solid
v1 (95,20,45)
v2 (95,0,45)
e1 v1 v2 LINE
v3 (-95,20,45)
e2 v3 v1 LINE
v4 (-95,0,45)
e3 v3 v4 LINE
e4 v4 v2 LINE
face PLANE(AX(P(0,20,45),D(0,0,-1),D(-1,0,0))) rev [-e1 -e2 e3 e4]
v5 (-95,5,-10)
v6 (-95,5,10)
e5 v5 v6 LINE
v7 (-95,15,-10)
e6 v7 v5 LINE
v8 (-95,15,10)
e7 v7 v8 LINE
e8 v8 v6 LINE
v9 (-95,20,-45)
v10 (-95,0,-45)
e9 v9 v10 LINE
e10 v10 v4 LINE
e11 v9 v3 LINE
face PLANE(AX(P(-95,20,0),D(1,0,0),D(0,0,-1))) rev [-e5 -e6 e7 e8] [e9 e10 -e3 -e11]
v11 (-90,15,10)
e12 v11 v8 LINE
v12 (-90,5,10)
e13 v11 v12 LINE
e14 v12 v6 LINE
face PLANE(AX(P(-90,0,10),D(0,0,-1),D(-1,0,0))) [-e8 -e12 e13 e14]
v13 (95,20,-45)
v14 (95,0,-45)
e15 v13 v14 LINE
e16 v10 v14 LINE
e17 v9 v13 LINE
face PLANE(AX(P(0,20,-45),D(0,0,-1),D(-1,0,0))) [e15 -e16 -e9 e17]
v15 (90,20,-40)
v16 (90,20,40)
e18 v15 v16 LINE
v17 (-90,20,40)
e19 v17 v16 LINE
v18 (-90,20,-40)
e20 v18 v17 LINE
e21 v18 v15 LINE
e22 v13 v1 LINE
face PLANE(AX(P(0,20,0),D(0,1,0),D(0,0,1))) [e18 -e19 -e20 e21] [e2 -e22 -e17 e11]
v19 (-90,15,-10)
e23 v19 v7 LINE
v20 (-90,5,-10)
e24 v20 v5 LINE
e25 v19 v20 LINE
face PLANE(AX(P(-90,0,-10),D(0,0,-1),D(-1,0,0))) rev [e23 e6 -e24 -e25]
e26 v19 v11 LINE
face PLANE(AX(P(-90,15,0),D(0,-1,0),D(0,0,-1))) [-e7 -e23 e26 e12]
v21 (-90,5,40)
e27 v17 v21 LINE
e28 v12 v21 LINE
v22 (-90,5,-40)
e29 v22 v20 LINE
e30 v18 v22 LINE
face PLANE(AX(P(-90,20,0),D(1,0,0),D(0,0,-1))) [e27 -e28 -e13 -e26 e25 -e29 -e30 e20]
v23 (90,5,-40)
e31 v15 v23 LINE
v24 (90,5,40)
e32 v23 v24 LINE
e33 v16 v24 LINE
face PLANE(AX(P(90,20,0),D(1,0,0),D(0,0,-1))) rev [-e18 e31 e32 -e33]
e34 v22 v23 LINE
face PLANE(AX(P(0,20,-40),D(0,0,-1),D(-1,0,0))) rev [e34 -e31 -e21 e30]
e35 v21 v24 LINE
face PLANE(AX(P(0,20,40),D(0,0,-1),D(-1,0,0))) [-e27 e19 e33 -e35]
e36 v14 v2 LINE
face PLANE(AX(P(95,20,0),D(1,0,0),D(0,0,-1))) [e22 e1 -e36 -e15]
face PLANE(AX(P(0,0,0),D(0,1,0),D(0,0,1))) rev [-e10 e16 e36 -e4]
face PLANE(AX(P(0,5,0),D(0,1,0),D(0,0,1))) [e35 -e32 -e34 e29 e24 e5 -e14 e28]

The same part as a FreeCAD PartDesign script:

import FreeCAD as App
import Part
import Sketcher
from FreeCAD import Vector

doc = App.newDocument("Part")
body = doc.addObject("PartDesign::Body", "Body")

# Sketch on XZ plane
sketch1 = body.newObject("Sketcher::SketchObject", "Sketch")
sketch1.AttachmentSupport = (doc.getObject("XZ_Plane"), [""])
sketch1.MapMode = "FlatFace"
sketch1.addGeometry([
    Part.LineSegment(Vector(-95, -45, 0), Vector(-95, 45, 0)),  # 0
    Part.LineSegment(Vector(-95, 45, 0), Vector(95, 45, 0)),  # 1
    Part.LineSegment(Vector(95, 45, 0), Vector(95, -45, 0)),  # 2
    Part.LineSegment(Vector(95, -45, 0), Vector(-95, -45, 0)),  # 3
    Part.LineSegment(Vector(90, 40, 0), Vector(-90, 40, 0)),  # 4
    Part.LineSegment(Vector(-90, 40, 0), Vector(-90, -40, 0)),  # 5
    Part.LineSegment(Vector(-90, -40, 0), Vector(90, -40, 0)),  # 6
    Part.LineSegment(Vector(90, -40, 0), Vector(90, 40, 0)),  # 7
], False)
sketch1.addConstraint([
    Sketcher.Constraint("Coincident", 0, 2, 1, 1),
    Sketcher.Constraint("Coincident", 1, 2, 2, 1),
    Sketcher.Constraint("Coincident", 2, 2, 3, 1),
    Sketcher.Constraint("Coincident", 3, 2, 0, 1),
    Sketcher.Constraint("Coincident", 4, 2, 5, 1),
    Sketcher.Constraint("Coincident", 5, 2, 6, 1),
    Sketcher.Constraint("Coincident", 6, 2, 7, 1),
    Sketcher.Constraint("Coincident", 7, 2, 4, 1),
    Sketcher.Constraint("Vertical", 0),
    Sketcher.Constraint("Horizontal", 1),
    Sketcher.Constraint("Vertical", 2),
    Sketcher.Constraint("Horizontal", 3),
    Sketcher.Constraint("Horizontal", 4),
    Sketcher.Constraint("Vertical", 5),
    Sketcher.Constraint("Horizontal", 6),
    Sketcher.Constraint("Vertical", 7),
    Sketcher.Constraint("Symmetric", 0, 2, 2, 2, -1, 1),
    Sketcher.Constraint("Symmetric", 4, 2, 6, 2, -1, 1),
    Sketcher.Constraint("DistanceX", 1, 1, 1, 2, 190.0),
    Sketcher.Constraint("DistanceX", 4, 2, 4, 1, 180.0),
    Sketcher.Constraint("DistanceY", 0, 1, 0, 2, 90.0),
    Sketcher.Constraint("DistanceY", 5, 2, 5, 1, 80.0),
])
pad1 = body.newObject("PartDesign::Pad", "Pad")
pad1.Profile = sketch1
pad1.Length = 20
pad1.Reversed = True

# Sketch on XZ plane
sketch2 = body.newObject("Sketcher::SketchObject", "Sketch001")
sketch2.AttachmentSupport = (doc.getObject("XZ_Plane"), [""])
sketch2.MapMode = "FlatFace"
sketch2.addGeometry([
    Part.LineSegment(Vector(90, -40, 0), Vector(-90, -40, 0)),
    Part.LineSegment(Vector(-90, -40, 0), Vector(-90, 40, 0)),
    Part.LineSegment(Vector(-90, 40, 0), Vector(90, 40, 0)),
    Part.LineSegment(Vector(90, 40, 0), Vector(90, -40, 0)),
], False)
sketch2.addConstraint([
    Sketcher.Constraint("Coincident", 0, 2, 1, 1),
    Sketcher.Constraint("Coincident", 1, 2, 2, 1),
    Sketcher.Constraint("Coincident", 2, 2, 3, 1),
    Sketcher.Constraint("Coincident", 3, 2, 0, 1),
    Sketcher.Constraint("Horizontal", 0),
    Sketcher.Constraint("Vertical", 1),
    Sketcher.Constraint("Horizontal", 2),
    Sketcher.Constraint("Vertical", 3),
    Sketcher.Constraint("Symmetric", 0, 2, 2, 2, -1, 1),
    Sketcher.Constraint("DistanceX", 0, 2, 0, 1, 180.0),
    Sketcher.Constraint("DistanceY", 1, 1, 1, 2, 80.0),
])
pad2 = body.newObject("PartDesign::Pad", "Pad001")
pad2.Profile = sketch2
pad2.Length = 5
pad2.Reversed = True

# Sketch on YZ plane
sketch3 = body.newObject("Sketcher::SketchObject", "Sketch002")
sketch3.AttachmentSupport = (doc.getObject("YZ_Plane"), [""])
sketch3.MapMode = "FlatFace"
sketch3.AttachmentOffset = App.Placement(Vector(0, 0, -95), App.Rotation())
sketch3.addGeometry([
    Part.LineSegment(Vector(5, -10, 0), Vector(5, 10, 0)),
    Part.LineSegment(Vector(5, 10, 0), Vector(15, 10, 0)),
    Part.LineSegment(Vector(15, 10, 0), Vector(15, -10, 0)),
    Part.LineSegment(Vector(15, -10, 0), Vector(5, -10, 0)),
], False)
sketch3.addConstraint([
    Sketcher.Constraint("Coincident", 0, 2, 1, 1),
    Sketcher.Constraint("Coincident", 1, 2, 2, 1),
    Sketcher.Constraint("Coincident", 2, 2, 3, 1),
    Sketcher.Constraint("Coincident", 3, 2, 0, 1),
    Sketcher.Constraint("Vertical", 0),
    Sketcher.Constraint("Horizontal", 1),
    Sketcher.Constraint("Vertical", 2),
    Sketcher.Constraint("Horizontal", 3),
    Sketcher.Constraint("DistanceX", 1, 1, 1, 2, 10.0),
    Sketcher.Constraint("DistanceY", 0, 1, 0, 2, 20.0),
    Sketcher.Constraint("DistanceX", -1, 1, 0, 2, 5.0),
    Sketcher.Constraint("DistanceY", -1, 1, 0, 2, 10.0),
])
pocket1 = body.newObject("PartDesign::Pocket", "Pocket")
pocket1.Profile = sketch3
pocket1.Length = 5
pocket1.Reversed = True

doc.recompute()
